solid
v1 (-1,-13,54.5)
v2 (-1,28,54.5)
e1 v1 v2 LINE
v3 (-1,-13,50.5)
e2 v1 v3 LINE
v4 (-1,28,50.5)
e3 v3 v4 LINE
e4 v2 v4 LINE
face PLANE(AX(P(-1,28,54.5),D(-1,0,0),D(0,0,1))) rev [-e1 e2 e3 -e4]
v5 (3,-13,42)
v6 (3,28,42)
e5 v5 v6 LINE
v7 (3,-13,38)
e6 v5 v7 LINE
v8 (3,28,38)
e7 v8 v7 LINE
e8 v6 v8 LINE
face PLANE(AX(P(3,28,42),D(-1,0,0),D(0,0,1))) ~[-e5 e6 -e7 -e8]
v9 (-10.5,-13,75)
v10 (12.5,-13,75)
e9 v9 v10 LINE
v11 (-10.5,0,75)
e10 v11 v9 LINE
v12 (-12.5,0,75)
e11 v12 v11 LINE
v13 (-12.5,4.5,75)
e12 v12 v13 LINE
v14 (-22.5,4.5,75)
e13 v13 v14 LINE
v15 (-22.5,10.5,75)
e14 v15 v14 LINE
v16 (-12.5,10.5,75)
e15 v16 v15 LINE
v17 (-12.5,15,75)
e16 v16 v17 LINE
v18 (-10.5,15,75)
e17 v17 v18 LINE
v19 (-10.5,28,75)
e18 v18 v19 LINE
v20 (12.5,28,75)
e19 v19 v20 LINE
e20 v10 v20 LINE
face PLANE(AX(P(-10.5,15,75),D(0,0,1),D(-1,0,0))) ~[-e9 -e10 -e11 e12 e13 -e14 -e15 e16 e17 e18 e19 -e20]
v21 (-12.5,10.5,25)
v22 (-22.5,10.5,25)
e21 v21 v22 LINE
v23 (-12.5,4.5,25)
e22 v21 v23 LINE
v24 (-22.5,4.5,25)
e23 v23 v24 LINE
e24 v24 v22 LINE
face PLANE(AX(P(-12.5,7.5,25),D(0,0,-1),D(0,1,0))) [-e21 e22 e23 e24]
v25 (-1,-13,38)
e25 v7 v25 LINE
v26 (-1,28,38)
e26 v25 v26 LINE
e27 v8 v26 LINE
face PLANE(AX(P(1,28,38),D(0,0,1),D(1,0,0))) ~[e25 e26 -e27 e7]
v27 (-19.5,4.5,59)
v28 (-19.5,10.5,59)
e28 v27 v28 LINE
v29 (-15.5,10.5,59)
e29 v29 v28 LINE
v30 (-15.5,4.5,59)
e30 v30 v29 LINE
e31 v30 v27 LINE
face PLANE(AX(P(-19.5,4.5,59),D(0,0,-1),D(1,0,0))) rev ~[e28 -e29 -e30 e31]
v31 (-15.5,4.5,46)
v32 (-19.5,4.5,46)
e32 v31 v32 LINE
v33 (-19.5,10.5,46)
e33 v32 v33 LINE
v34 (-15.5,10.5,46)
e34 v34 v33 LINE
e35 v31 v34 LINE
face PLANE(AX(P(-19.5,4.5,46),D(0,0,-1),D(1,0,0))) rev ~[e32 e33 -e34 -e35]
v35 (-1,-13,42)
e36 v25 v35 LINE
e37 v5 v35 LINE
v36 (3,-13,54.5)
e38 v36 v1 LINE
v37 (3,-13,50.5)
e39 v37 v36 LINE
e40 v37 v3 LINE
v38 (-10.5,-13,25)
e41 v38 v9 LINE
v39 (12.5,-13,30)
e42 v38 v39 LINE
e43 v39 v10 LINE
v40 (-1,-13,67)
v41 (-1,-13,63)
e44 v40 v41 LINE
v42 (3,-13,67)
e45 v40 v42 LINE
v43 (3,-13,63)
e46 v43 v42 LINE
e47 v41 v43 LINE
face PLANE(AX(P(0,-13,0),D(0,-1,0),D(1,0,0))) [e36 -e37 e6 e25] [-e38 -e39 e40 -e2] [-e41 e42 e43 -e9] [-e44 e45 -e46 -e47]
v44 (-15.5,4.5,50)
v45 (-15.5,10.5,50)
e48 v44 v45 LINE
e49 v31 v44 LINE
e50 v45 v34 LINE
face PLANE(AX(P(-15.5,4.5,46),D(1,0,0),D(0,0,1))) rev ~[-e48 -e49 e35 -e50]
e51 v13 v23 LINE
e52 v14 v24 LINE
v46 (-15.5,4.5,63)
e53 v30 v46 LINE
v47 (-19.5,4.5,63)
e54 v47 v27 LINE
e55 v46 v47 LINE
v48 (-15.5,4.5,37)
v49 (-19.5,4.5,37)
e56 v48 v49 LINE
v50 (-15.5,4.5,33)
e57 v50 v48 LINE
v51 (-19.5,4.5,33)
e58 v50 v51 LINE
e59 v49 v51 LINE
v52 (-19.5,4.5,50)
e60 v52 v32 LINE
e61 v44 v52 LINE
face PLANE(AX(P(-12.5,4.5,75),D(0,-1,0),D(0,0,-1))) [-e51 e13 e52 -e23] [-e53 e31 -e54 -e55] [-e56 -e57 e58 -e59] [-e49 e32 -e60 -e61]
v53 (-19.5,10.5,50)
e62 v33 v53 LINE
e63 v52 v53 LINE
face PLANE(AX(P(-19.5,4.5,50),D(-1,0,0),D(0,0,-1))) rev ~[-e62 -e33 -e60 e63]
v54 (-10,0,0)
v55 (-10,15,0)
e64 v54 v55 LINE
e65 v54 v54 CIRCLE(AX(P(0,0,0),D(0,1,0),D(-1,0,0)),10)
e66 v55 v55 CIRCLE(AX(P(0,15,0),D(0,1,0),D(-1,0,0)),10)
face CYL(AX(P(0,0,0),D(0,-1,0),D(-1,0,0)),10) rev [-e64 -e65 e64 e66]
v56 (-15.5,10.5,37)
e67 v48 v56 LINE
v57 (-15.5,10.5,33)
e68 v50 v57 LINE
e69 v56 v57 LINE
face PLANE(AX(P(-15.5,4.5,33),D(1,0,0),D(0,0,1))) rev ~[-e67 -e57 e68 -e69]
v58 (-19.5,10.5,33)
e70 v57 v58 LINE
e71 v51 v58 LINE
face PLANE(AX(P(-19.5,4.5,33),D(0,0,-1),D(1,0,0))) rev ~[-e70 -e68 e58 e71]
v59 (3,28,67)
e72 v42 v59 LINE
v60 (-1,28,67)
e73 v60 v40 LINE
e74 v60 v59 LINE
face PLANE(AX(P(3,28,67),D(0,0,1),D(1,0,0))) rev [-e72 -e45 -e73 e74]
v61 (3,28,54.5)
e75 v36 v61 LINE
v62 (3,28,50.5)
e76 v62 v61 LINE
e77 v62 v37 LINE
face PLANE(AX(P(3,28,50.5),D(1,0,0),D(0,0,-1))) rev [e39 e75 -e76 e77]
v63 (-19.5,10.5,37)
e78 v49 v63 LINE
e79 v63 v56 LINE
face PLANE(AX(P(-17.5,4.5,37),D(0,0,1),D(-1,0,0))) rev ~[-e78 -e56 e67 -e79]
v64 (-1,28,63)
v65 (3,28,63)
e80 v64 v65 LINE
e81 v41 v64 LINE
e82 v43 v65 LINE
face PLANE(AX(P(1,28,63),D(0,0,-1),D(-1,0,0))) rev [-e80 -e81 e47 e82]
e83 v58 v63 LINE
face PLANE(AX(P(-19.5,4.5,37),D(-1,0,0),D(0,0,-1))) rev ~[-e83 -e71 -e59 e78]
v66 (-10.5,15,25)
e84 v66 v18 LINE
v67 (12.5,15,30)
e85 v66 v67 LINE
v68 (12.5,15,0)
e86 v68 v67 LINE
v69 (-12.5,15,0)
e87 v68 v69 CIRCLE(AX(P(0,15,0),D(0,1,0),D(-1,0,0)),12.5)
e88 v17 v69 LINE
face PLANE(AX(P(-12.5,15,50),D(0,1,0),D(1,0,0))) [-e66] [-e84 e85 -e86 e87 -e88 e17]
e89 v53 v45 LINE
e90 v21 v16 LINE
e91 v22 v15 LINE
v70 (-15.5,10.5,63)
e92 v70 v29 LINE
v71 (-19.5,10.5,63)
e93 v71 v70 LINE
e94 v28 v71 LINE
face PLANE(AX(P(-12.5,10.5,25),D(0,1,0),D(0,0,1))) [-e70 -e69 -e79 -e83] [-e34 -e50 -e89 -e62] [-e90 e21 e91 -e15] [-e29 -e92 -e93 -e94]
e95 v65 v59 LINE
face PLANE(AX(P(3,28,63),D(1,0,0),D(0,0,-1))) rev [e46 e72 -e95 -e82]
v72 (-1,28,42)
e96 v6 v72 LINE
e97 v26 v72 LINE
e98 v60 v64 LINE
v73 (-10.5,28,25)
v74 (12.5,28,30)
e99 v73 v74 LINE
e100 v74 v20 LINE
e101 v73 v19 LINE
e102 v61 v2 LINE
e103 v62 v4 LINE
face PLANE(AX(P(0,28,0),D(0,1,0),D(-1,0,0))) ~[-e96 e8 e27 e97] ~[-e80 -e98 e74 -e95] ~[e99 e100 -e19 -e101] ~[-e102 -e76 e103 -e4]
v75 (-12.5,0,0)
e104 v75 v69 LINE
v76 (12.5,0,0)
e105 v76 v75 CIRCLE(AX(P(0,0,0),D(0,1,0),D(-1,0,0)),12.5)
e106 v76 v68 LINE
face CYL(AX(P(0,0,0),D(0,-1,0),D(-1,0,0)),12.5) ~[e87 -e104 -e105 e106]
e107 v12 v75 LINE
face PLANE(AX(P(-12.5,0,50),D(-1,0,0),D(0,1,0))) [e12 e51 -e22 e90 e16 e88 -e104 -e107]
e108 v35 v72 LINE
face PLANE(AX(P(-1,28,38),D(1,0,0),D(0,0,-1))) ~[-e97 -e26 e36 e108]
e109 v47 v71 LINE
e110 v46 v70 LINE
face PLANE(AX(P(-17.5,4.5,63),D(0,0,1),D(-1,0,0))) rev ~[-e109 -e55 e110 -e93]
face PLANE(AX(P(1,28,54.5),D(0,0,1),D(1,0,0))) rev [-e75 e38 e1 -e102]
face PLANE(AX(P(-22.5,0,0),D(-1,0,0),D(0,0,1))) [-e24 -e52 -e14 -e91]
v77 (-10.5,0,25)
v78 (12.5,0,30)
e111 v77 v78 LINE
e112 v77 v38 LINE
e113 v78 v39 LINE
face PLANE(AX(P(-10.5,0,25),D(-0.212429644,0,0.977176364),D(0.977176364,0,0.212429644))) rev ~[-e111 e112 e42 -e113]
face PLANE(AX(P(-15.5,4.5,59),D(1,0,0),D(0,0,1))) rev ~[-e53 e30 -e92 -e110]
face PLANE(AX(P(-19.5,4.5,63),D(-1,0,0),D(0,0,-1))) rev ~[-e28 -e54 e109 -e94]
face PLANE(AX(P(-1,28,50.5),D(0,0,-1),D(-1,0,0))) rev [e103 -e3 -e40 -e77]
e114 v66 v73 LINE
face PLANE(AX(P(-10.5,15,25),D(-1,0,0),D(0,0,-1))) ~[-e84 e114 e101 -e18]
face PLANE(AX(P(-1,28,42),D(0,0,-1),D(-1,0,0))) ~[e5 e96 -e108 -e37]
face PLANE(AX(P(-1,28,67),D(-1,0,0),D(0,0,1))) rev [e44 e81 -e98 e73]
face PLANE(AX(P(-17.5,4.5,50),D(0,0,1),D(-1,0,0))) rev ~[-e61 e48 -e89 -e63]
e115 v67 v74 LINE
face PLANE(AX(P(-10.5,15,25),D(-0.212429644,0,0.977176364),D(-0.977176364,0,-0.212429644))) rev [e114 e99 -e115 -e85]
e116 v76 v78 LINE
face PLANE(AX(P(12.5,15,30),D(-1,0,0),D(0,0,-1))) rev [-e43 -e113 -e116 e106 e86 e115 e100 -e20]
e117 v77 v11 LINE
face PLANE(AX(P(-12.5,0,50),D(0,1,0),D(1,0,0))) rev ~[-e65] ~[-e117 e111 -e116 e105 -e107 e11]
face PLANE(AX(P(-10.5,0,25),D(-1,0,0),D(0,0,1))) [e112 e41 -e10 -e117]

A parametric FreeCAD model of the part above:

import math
import FreeCAD as App
import Part
import Sketcher
from FreeCAD import Vector
Q = App.Units.Quantity

doc = App.newDocument("Part")
body = doc.addObject("PartDesign::Body", "Body")

sketch1 = body.newObject("Sketcher::SketchObject", "Sketch")
sketch1.AttachmentSupport = (doc.getObject("XZ_Plane"), [""])
sketch1.MapMode = "FlatFace"
sketch1.addGeometry(Part.ArcOfCircle(Part.Circle(Vector(0, 0, 0), Vector(0, 0, 1), 12), math.radians(180), math.radians(360)), False)
sketch1.addGeometry(Part.LineSegment(Vector(-12, 0, 0), Vector(-12, 50, 0)), False)
sketch1.addGeometry(Part.LineSegment(Vector(-12, 50, 0), Vector(12, 50, 0)), False)
sketch1.addGeometry(Part.LineSegment(Vector(12, 50, 0), Vector(12, 0, 0)), False)
sketch1.addGeometry(Part.Circle(Vector(0, 0, 0), Vector(0, 0, 1), 10), False)
sketch1.addConstraint(Sketcher.Constraint("Tangent", 0, 1, 1, 1))
sketch1.addConstraint(Sketcher.Constraint("Coincident", 1, 2, 2, 1))
sketch1.addConstraint(Sketcher.Constraint("Coincident", 2, 2, 3, 1))
sketch1.addConstraint(Sketcher.Constraint("Tangent", 3, 2, 0, 2))
sketch1.addConstraint(Sketcher.Constraint("Vertical", 1))
sketch1.addConstraint(Sketcher.Constraint("Horizontal", 2))
sketch1.addConstraint(Sketcher.Constraint("Vertical", 3))
sketch1.addConstraint(Sketcher.Constraint("Coincident", 0, 3, -1, 1))
sketch1.addConstraint(Sketcher.Constraint("Coincident", 4, 3, -1, 1))
sketch1.addConstraint(Sketcher.Constraint("Diameter", 4, Q("20 mm")))
sketch1.addConstraint(Sketcher.Constraint("Radius", 0, Q("12.5 mm")))
sketch1.addConstraint(Sketcher.Constraint("DistanceY", 1, 1, 1, 2, Q("50 mm")))
pad1 = body.newObject("PartDesign::Pad", "Pad")
pad1.Profile = sketch1
pad1.Length = 15
pad1.Reversed = True

sketch2 = body.newObject("Sketcher::SketchObject", "Sketch001")
sketch2.AttachmentSupport = (doc.getObject("YZ_Plane"), [""])
sketch2.MapMode = "FlatFace"
sketch2.AttachmentOffset = App.Placement(Vector(0, 0, -12.5), App.Rotation())
sketch2.addGeometry(Part.LineSegment(Vector(10, 25, 0), Vector(4, 25, 0)), False)
sketch2.addGeometry(Part.LineSegment(Vector(4, 25, 0), Vector(4, 75, 0)), False)
sketch2.addGeometry(Part.LineSegment(Vector(4, 75, 0), Vector(10, 75, 0)), False)
sketch2.addGeometry(Part.LineSegment(Vector(10, 75, 0), Vector(10, 25, 0)), False)
sketch2.addConstraint(Sketcher.Constraint("Coincident", 0, 2, 1, 1))
sketch2.addConstraint(Sketcher.Constraint("Coincident", 1, 2, 2, 1))
sketch2.addConstraint(Sketcher.Constraint("Coincident", 2, 2, 3, 1))
sketch2.addConstraint(Sketcher.Constraint("Coincident", 3, 2, 0, 1))
sketch2.addConstraint(Sketcher.Constraint("Horizontal", 0))
sketch2.addConstraint(Sketcher.Constraint("Vertical", 1))
sketch2.addConstraint(Sketcher.Constraint("Horizontal", 2))
sketch2.addConstraint(Sketcher.Constraint("Vertical", 3))
sketch2.addConstraint(Sketcher.Constraint("DistanceX", 0, 2, 0, 1, Q("6 mm")))
sketch2.addConstraint(Sketcher.Constraint("DistanceY", 1, 1, 1, 2, Q("50 mm")))
sketch2.addConstraint(Sketcher.Constraint("DistanceY", -1, 1, 0, 2, Q("25 mm")))
sketch2.addConstraint(Sketcher.Constraint("DistanceX", -1, 1, 0, 2, Q("4.5 mm")))
pad2 = body.newObject("PartDesign::Pad", "Pad001")
pad2.Profile = sketch2
pad2.Length = 10
pad2.Reversed = True

sketch3 = body.newObject("Sketcher::SketchObject", "Sketch002")
sketch3.AttachmentSupport = (doc.getObject("XY_Plane"), [""])
sketch3.MapMode = "FlatFace"
sketch3.AttachmentOffset = App.Placement(Vector(0, 0, 50), App.Rotation())
sketch3.addGeometry(Part.LineSegment(Vector(-12, 0, 0), Vector(12, 0, 0)), False)
sketch3.addGeometry(Part.LineSegment(Vector(12, 0, 0), Vector(12, 15, 0)), False)
sketch3.addGeometry(Part.LineSegment(Vector(12, 15, 0), Vector(-12, 15, 0)), False)
sketch3.addGeometry(Part.LineSegment(Vector(-12, 15, 0), Vector(-12, 0, 0)), False)
sketch3.addConstraint(Sketcher.Constraint("Coincident", 0, 2, 1, 1))
sketch3.addConstraint(Sketcher.Constraint("Coincident", 1, 2, 2, 1))
sketch3.addConstraint(Sketcher.Constraint("Coincident", 2, 2, 3, 1))
sketch3.addConstraint(Sketcher.Constraint("Coincident", 3, 2, 0, 1))
sketch3.addConstraint(Sketcher.Constraint("Horizontal", 0))
sketch3.addConstraint(Sketcher.Constraint("Vertical", 1))
sketch3.addConstraint(Sketcher.Constraint("Horizontal", 2))
sketch3.addConstraint(Sketcher.Constraint("Vertical", 3))
sketch3.addConstraint(Sketcher.Constraint("Symmetric", 0, 2, 3, 2, -1, 1))
sketch3.addConstraint(Sketcher.Constraint("DistanceX", 0, 1, 0, 2, Q("25 mm")))
sketch3.addConstraint(Sketcher.Constraint("DistanceY", 1, 1, 1, 2, Q("15 mm")))
pad3 = body.newObject("PartDesign::Pad", "Pad002")
pad3.Profile = sketch3
pad3.Length = 25

sketch4 = body.newObject("Sketcher::SketchObject", "Sketch003")
sketch4.AttachmentSupport = (doc.getObject("XZ_Plane"), [""])
sketch4.MapMode = "FlatFace"
sketch4.AttachmentOffset = App.Placement(Vector(0, 0, -4.5), App.Rotation())
sketch4.addGeometry(Part.LineSegment(Vector(-19.5, 33, 0), Vector(-15.5, 33, 0)), False)
sketch4.addGeometry(Part.LineSegment(Vector(-15.5, 33, 0), Vector(-15.5, 37, 0)), False)
sketch4.addGeometry(Part.LineSegment(Vector(-15.5, 37, 0), Vector(-19.5, 37, 0)), False)
sketch4.addGeometry(Part.LineSegment(Vector(-19.5, 37, 0), Vector(-19.5, 33, 0)), False)
sketch4.addGeometry(Part.LineSegment(Vector(-19.5, 59, 0), Vector(-15.5, 59, 0)), False)
sketch4.addGeometry(Part.LineSegment(Vector(-15.5, 59, 0), Vector(-15.5, 63, 0)), False)
sketch4.addGeometry(Part.LineSegment(Vector(-15.5, 63, 0), Vector(-19.5, 63, 0)), False)
sketch4.addGeometry(Part.LineSegment(Vector(-19.5, 63, 0), Vector(-19.5, 59, 0)), False)
sketch4.addGeometry(Part.LineSegment(Vector(-19.5, 46, 0), Vector(-15.5, 46, 0)), False)
sketch4.addGeometry(Part.LineSegment(Vector(-15.5, 46, 0), Vector(-15.5, 50, 0)), False)
sketch4.addGeometry(Part.LineSegment(Vector(-15.5, 50, 0), Vector(-19.5, 50, 0)), False)
sketch4.addGeometry(Part.LineSegment(Vector(-19.5, 50, 0), Vector(-19.5, 46, 0)), False)
sketch4.addConstraint(Sketcher.Constraint("Coincident", 0, 2, 1, 1))
sketch4.addConstraint(Sketcher.Constraint("Coincident", 1, 2, 2, 1))
sketch4.addConstraint(Sketcher.Constraint("Coincident", 2, 2, 3, 1))
sketch4.addConstraint(Sketcher.Constraint("Coincident", 3, 2, 0, 1))
sketch4.addConstraint(Sketcher.Constraint("Coincident", 4, 2, 5, 1))
sketch4.addConstraint(Sketcher.Constraint("Coincident", 5, 2, 6, 1))
sketch4.addConstraint(Sketcher.Constraint("Coincident", 6, 2, 7, 1))
sketch4.addConstraint(Sketcher.Constraint("Coincident", 7, 2, 4, 1))
sketch4.addConstraint(Sketcher.Constraint("Coincident", 8, 2, 9, 1))
sketch4.addConstraint(Sketcher.Constraint("Coincident", 9, 2, 10, 1))
sketch4.addConstraint(Sketcher.Constraint("Coincident", 10, 2, 11, 1))
sketch4.addConstraint(Sketcher.Constraint("Coincident", 11, 2, 8, 1))
sketch4.addConstraint(Sketcher.Constraint("Horizontal", 0))
sketch4.addConstraint(Sketcher.Constraint("Vertical", 1))
sketch4.addConstraint(Sketcher.Constraint("Horizontal", 2))
sketch4.addConstraint(Sketcher.Constraint("Vertical", 3))
sketch4.addConstraint(Sketcher.Constraint("Horizontal", 4))
sketch4.addConstraint(Sketcher.Constraint("Vertical", 5))
sketch4.addConstraint(Sketcher.Constraint("Horizontal", 6))
sketch4.addConstraint(Sketcher.Constraint("Vertical", 7))
sketch4.addConstraint(Sketcher.Constraint("Horizontal", 8))
sketch4.addConstraint(Sketcher.Constraint("Vertical", 9))
sketch4.addConstraint(Sketcher.Constraint("Horizontal", 10))
sketch4.addConstraint(Sketcher.Constraint("Vertical", 11))
sketch4.addConstraint(Sketcher.Constraint("Vertical", 1, 2, 4, 2))
sketch4.addConstraint(Sketcher.Constraint("Vertical", 3, 2, 6, 2))
sketch4.addConstraint(Sketcher.Constraint("Vertical", 5, 2, 8, 2))
sketch4.addConstraint(Sketcher.Constraint("Vertical", 7, 2, 10, 2))
sketch4.addConstraint(Sketcher.Constraint("Equal", 10, 1))
sketch4.addConstraint(Sketcher.Constraint("Equal", 3, 5))
sketch4.addConstraint(Sketcher.Constraint("Equal", 7, 9))
sketch4.addConstraint(Sketcher.Constraint("DistanceX", 0, 1, 0, 2, Q("4 mm")))
sketch4.addConstraint(Sketcher.Constraint("DistanceY", 0, 2, 8, 2, Q("13 mm")))
sketch4.addConstraint(Sketcher.Constraint("DistanceY", 8, 2, 4, 2, Q("13 mm")))
sketch4.addConstraint(Sketcher.Constraint("DistanceY", -1, 1, 0, 2, Q("33 mm")))
sketch4.addConstraint(Sketcher.Constraint("DistanceX", 0, 2, -1, 1, Q("15.5 mm")))
pocket1 = body.newObject("PartDesign::Pocket", "Pocket")
pocket1.Profile = sketch4
pocket1.Length = 10

sketch5 = body.newObject("Sketcher::SketchObject", "Sketch004")
sketch5.AttachmentSupport = (doc.getObject("XZ_Plane"), [""])
sketch5.MapMode = "FlatFace"
sketch5.addGeometry(Part.LineSegment(Vector(-10, 75, 0), Vector(-10, 25, 0)), False)
sketch5.addGeometry(Part.LineSegment(Vector(-10, 25, 0), Vector(12, 30, 0)), False)
sketch5.addGeometry(Part.LineSegment(Vector(12, 30, 0), Vector(12, 75, 0)), False)
sketch5.addGeometry(Part.LineSegment(Vector(12, 75, 0), Vector(-10, 75, 0)), False)
sketch5.addConstraint(Sketcher.Constraint("Coincident", 0, 2, 1, 1))
sketch5.addConstraint(Sketcher.Constraint("Coincident", 1, 2, 2, 1))
sketch5.addConstraint(Sketcher.Constraint("Coincident", 2, 2, 3, 1))
sketch5.addConstraint(Sketcher.Constraint("Coincident", 3, 2, 0, 1))
sketch5.addConstraint(Sketcher.Constraint("Vertical", 0))
sketch5.addConstraint(Sketcher.Constraint("Vertical", 2))
sketch5.addConstraint(Sketcher.Constraint("Horizontal", 3))
sketch5.addConstraint(Sketcher.Constraint("DistanceY", -1, 1, 1, 2, Q("30 mm")))
sketch5.addConstraint(Sketcher.Constraint("DistanceX", 3, 2, 3, 1, Q("23 mm")))
sketch5.addConstraint(Sketcher.Constraint("DistanceY", 0, 2, 0, 1, Q("50 mm")))
sketch5.addConstraint(Sketcher.Constraint("DistanceY", 2, 1, 2, 2, Q("45 mm")))
sketch5.addConstraint(Sketcher.Constraint("DistanceX", 0, 2, -1, 1, Q("10.5 mm")))
pad4 = body.newObject("PartDesign::Pad", "Pad003")
pad4.Profile = sketch5
pad4.Length = 13

sketch6 = body.newObject("Sketcher::SketchObject", "Sketch005")
sketch6.AttachmentSupport = (doc.getObject("XZ_Plane"), [""])
sketch6.MapMode = "FlatFace"
sketch6.AttachmentOffset = App.Placement(Vector(0, 0, 13), App.Rotation())
sketch6.addGeometry(Part.LineSegment(Vector(-1, 38, 0), Vector(3, 38, 0)), False)
sketch6.addGeometry(Part.LineSegment(Vector(3, 38, 0), Vector(3, 42, 0)), False)
sketch6.addGeometry(Part.LineSegment(Vector(3, 42, 0), Vector(-1, 42, 0)), False)
sketch6.addGeometry(Part.LineSegment(Vector(-1, 42, 0), Vector(-1, 38, 0)), False)
sketch6.addGeometry(Part.LineSegment(Vector(3, 67, 0), Vector(-1, 67, 0)), False)
sketch6.addGeometry(Part.LineSegment(Vector(-1, 67, 0), Vector(-1, 63, 0)), False)
sketch6.addGeometry(Part.LineSegment(Vector(-1, 63, 0), Vector(3, 63, 0)), False)
sketch6.addGeometry(Part.LineSegment(Vector(3, 63, 0), Vector(3, 67, 0)), False)
sketch6.addGeometry(Part.LineSegment(Vector(-1, 50.5, 0), Vector(3, 50.5, 0)), False)
sketch6.addGeometry(Part.LineSegment(Vector(3, 50.5, 0), Vector(3, 54.5, 0)), False)
sketch6.addGeometry(Part.LineSegment(Vector(3, 54.5, 0), Vector(-1, 54.5, 0)), False)
sketch6.addGeometry(Part.LineSegment(Vector(-1, 54.5, 0), Vector(-1, 50.5, 0)), False)
sketch6.addConstraint(Sketcher.Constraint("Coincident", 0, 2, 1, 1))
sketch6.addConstraint(Sketcher.Constraint("Coincident", 1, 2, 2, 1))
sketch6.addConstraint(Sketcher.Constraint("Coincident", 2, 2, 3, 1))
sketch6.addConstraint(Sketcher.Constraint("Coincident", 3, 2, 0, 1))
sketch6.addConstraint(Sketcher.Constraint("Coincident", 4, 2, 5, 1))
sketch6.addConstraint(Sketcher.Constraint("Coincident", 5, 2, 6, 1))
sketch6.addConstraint(Sketcher.Constraint("Coincident", 6, 2, 7, 1))
sketch6.addConstraint(Sketcher.Constraint("Coincident", 7, 2, 4, 1))
sketch6.addConstraint(Sketcher.Constraint("Coincident", 8, 2, 9, 1))
sketch6.addConstraint(Sketcher.Constraint("Coincident", 9, 2, 10, 1))
sketch6.addConstraint(Sketcher.Constraint("Coincident", 10, 2, 11, 1))
sketch6.addConstraint(Sketcher.Constraint("Coincident", 11, 2, 8, 1))
sketch6.addConstraint(Sketcher.Constraint("Horizontal", 0))
sketch6.addConstraint(Sketcher.Constraint("Vertical", 1))
sketch6.addConstraint(Sketcher.Constraint("Horizontal", 2))
sketch6.addConstraint(Sketcher.Constraint("Vertical", 3))
sketch6.addConstraint(Sketcher.Constraint("Horizontal", 4))
sketch6.addConstraint(Sketcher.Constraint("Vertical", 5))
sketch6.addConstraint(Sketcher.Constraint("Horizontal", 6))
sketch6.addConstraint(Sketcher.Constraint("Vertical", 7))
sketch6.addConstraint(Sketcher.Constraint("Horizontal", 8))
sketch6.addConstraint(Sketcher.Constraint("Vertical", 9))
sketch6.addConstraint(Sketcher.Constraint("Horizontal", 10))
sketch6.addConstraint(Sketcher.Constraint("Vertical", 11))
sketch6.addConstraint(Sketcher.Constraint("Vertical", 3, 2, 4, 2))
sketch6.addConstraint(Sketcher.Constraint("Vertical", 1, 2, 6, 2))
sketch6.addConstraint(Sketcher.Constraint("Vertical", 7, 2, 8, 2))
sketch6.addConstraint(Sketcher.Constraint("Vertical", 5, 2, 10, 2))
sketch6.addConstraint(Sketcher.Constraint("Equal", 10, 1))
sketch6.addConstraint(Sketcher.Constraint("Equal", 3, 5))
sketch6.addConstraint(Sketcher.Constraint("Equal", 7, 9))
sketch6.addConstraint(Sketcher.Constraint("DistanceX", 0, 1, 0, 2, Q("4 mm")))
sketch6.addConstraint(Sketcher.Constraint("DistanceY", 0, 2, 8, 2, Q("12.5 mm")))
sketch6.addConstraint(Sketcher.Constraint("DistanceY", 8, 2, 6, 2, Q("12.5 mm")))
sketch6.addConstraint(Sketcher.Constraint("DistanceX", -1, 1, 0, 2, Q("3 mm")))
sketch6.addConstraint(Sketcher.Constraint("DistanceY", -1, 1, 0, 2, Q("38 mm")))
pocket2 = body.newObject("PartDesign::Pocket", "Pocket001")
pocket2.Profile = sketch6
pocket2.Length = 50
doc.recompute()

datumplane = body.newObject("PartDesign::Plane", "DatumPlane")
datumplane.AttachmentSupport = (doc.getObject("XZ_Plane"), [""])
datumplane.MapMode = "FlatFace"
datumplane.AttachmentOffset = App.Placement(Vector(0, 0, -7.5), App.Rotation())
mirrored = body.newObject("PartDesign::Mirrored", "Mirrored")
mirrored.Originals = [pad4]
mirrored.MirrorPlane = (datumplane, [""])
body.Tip = mirrored
doc.recompute()

datumplane2 = body.newObject("PartDesign::Plane", "DatumPlane001")
datumplane2.AttachmentSupport = (doc.getObject("XZ_Plane"), [""])
datumplane2.MapMode = "FlatFace"
datumplane2.AttachmentOffset = App.Placement(Vector(0, 0, -7.5), App.Rotation())
mirrored2 = body.newObject("PartDesign::Mirrored", "Mirrored001")
mirrored2.Originals = [pocket2]
mirrored2.MirrorPlane = (datumplane2, [""])
body.Tip = mirrored2

doc.recompute()
